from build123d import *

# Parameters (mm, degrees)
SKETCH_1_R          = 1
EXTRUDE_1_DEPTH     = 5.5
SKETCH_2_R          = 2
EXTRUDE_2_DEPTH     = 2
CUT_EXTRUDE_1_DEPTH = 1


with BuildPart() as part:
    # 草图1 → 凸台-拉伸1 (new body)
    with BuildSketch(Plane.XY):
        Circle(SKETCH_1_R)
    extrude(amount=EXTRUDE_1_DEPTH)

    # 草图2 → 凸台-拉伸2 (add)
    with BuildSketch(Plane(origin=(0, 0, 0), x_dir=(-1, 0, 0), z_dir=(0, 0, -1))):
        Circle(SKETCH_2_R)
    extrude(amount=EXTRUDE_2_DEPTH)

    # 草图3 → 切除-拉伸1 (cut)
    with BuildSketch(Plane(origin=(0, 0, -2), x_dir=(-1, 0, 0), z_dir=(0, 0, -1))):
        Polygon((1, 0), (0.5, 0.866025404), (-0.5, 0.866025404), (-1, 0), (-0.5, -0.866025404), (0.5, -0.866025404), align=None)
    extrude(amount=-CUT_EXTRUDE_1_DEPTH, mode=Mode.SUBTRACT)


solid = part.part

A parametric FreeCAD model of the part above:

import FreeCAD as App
import Part
import Sketcher
Q = App.Units.Quantity


def add_polygon(sketch, points):
    """Adds a closed chain of lines whose ends are joined by coincident constraints."""
    first, n = sketch.GeometryCount, len(points)
    for a, b in zip(points, points[1:] + points[:1]):
        sketch.addGeometry(Part.LineSegment(App.Vector(*a, 0), App.Vector(*b, 0)), False)
    for i in range(n):
        sketch.addConstraint(Sketcher.Constraint("Coincident", first + i, 2, first + (i + 1) % n, 1))

doc = App.newDocument("Part")
body = doc.addObject("PartDesign::Body", "Body")

# Sketch on XY plane
sketch1 = body.newObject("Sketcher::SketchObject", "Sketch")
sketch1.AttachmentSupport = (doc.getObject("XY_Plane"), [""])
sketch1.MapMode = "FlatFace"
sketch1.addGeometry(Part.Circle(App.Vector(0, 0, 0), App.Vector(0, 0, 1), 1), False)
sketch1.addConstraint([
    Sketcher.Constraint("Coincident", 0, 3, -1, 1),
    Sketcher.Constraint("Diameter", 0, 2.0),
])
pad1 = body.newObject("PartDesign::Pad", "Pad")
pad1.Profile = sketch1
pad1.Length = 5.5

# Sketch on XY plane
sketch2 = body.newObject("Sketcher::SketchObject", "Sketch001")
sketch2.AttachmentSupport = (doc.getObject("XY_Plane"), [""])
sketch2.MapMode = "FlatFace"
sketch2.addGeometry(Part.Circle(App.Vector(0, 0, 0), App.Vector(0, 0, 1), 2), False)
sketch2.addConstraint([
    Sketcher.Constraint("Coincident", 0, 3, -1, 1),
    Sketcher.Constraint("Diameter", 0, 4.0),
])
pad2 = body.newObject("PartDesign::Pad", "Pad001")
pad2.Profile = sketch2
pad2.Length = 2
pad2.Reversed = True

# Sketch on XY plane
sketch3 = body.newObject("Sketcher::SketchObject", "Sketch002")
sketch3.AttachmentSupport = (doc.getObject("XY_Plane"), [""])
sketch3.MapMode = "FlatFace"
sketch3.AttachmentOffset = App.Placement(App.Vector(0, 0, -2), App.Rotation())
add_polygon(sketch3, [(-1, 0), (-0.5, 0.9), (0.5, 0.9), (1, 0), (0.5, -0.9), (-0.5, -0.9)])  # lines 0-5
sketch3.addConstraint([
    Sketcher.Constraint("Horizontal", 1),
    Sketcher.Constraint("Horizontal", 4),
    Sketcher.Constraint("Symmetric", 0, 2, 3, 2, -1, 1),
    Sketcher.Constraint("Symmetric", 2, 2, 5, 2, -1, 1),
    Sketcher.Constraint("PointOnObject", 2, 2, -1),
    Sketcher.Constraint("Parallel", 2, 5),
    Sketcher.Constraint("Vertical", 1, 2, 3, 2),
    Sketcher.Constraint("DistanceX", 1, 1, 1, 2, 1.0),
    Sketcher.Constraint("Angle", 0, Q("60 deg")),
    Sketcher.Constraint("Distance", 0, 1.0),
])
pocket1 = body.newObject("PartDesign::Pocket", "Pocket")
pocket1.Profile = sketch3
pocket1.Length = 1
pocket1.Reversed = True

doc.recompute()
